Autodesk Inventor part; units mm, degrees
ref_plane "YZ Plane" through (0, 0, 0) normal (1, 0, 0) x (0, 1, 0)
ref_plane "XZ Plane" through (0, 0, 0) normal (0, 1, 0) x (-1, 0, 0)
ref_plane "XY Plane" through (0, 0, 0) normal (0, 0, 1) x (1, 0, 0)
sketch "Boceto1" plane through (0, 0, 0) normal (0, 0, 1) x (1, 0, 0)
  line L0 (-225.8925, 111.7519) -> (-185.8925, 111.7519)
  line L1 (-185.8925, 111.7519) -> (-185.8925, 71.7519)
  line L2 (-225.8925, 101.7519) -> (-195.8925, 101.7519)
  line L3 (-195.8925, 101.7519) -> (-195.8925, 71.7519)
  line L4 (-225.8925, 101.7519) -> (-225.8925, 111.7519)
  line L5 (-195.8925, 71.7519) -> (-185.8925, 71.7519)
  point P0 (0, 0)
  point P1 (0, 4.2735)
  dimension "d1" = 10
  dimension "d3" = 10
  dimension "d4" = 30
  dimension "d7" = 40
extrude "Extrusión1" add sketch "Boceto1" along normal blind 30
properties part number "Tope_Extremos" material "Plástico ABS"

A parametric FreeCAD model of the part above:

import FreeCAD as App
import Part
import Sketcher
from FreeCAD import Vector
Q = App.Units.Quantity


def add_polygon(sketch, points):
    """Adds a closed chain of lines whose ends are joined by coincident constraints."""
    first, n = sketch.GeometryCount, len(points)
    for a, b in zip(points, points[1:] + points[:1]):
        sketch.addGeometry(Part.LineSegment(App.Vector(*a, 0), App.Vector(*b, 0)), False)
    for i in range(n):
        sketch.addConstraint(Sketcher.Constraint("Coincident", first + i, 2, first + (i + 1) % n, 1))

doc = App.newDocument("Part")
body = doc.addObject("PartDesign::Body", "Body")

# Sketch on XY plane
sketch1 = body.newObject("Sketcher::SketchObject", "Sketch")
sketch1.AttachmentSupport = (doc.getObject("XY_Plane"), [""])
sketch1.MapMode = "FlatFace"
add_polygon(sketch1, [(-186, 112), (-226, 112), (-226, 102), (-196, 102), (-196, 72), (-186, 72)])  # lines 0-5
sketch1.addConstraint(Sketcher.Constraint("Horizontal", 0))
sketch1.addConstraint(Sketcher.Constraint("Vertical", 1))
sketch1.addConstraint(Sketcher.Constraint("Horizontal", 2))
sketch1.addConstraint(Sketcher.Constraint("Vertical", 3))
sketch1.addConstraint(Sketcher.Constraint("Horizontal", 4))
sketch1.addConstraint(Sketcher.Constraint("Vertical", 5))
sketch1.addConstraint(Sketcher.Constraint("Equal", 4, 1))
sketch1.addConstraint(Sketcher.Constraint("Equal", 2, 3))
sketch1.addConstraint(Sketcher.Constraint("DistanceX", 0, 2, 0, 1, Q("40 mm")))
sketch1.addConstraint(Sketcher.Constraint("DistanceX", 2, 1, 2, 2, Q("30 mm")))
sketch1.addConstraint(Sketcher.Constraint("DistanceY", -1, 1, 0, 2, Q("111.752 mm")))
sketch1.addConstraint(Sketcher.Constraint("DistanceX", 0, 2, -1, 1, Q("225.8925 mm")))
pad1 = body.newObject("PartDesign::Pad", "Pad")
pad1.Profile = sketch1
pad1.Length = 30

doc.recompute()
